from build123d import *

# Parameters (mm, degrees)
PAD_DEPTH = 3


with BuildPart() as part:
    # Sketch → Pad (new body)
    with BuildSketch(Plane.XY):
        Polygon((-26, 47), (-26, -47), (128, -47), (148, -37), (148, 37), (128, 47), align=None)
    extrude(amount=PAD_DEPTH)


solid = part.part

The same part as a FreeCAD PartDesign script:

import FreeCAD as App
import Part
import Sketcher


def add_polygon(sketch, points):
    """Adds a closed chain of lines whose ends are joined by coincident constraints."""
    first, n = sketch.GeometryCount, len(points)
    for a, b in zip(points, points[1:] + points[:1]):
        sketch.addGeometry(Part.LineSegment(App.Vector(*a, 0), App.Vector(*b, 0)), False)
    for i in range(n):
        sketch.addConstraint(Sketcher.Constraint("Coincident", first + i, 2, first + (i + 1) % n, 1))

doc = App.newDocument("Part")
params = doc.addObject("Spreadsheet::Sheet", "Params")
for row, (alias, value) in enumerate([
    ("sketch1_width", "154 mm"),
    ("sketch1_height", "94 mm"),
    ("sketch1_height2", "74 mm"),
    ("pad1_length", "3 mm"),
], start=1):
    params.set(f"A{row}", alias)
    params.set(f"B{row}", "=" + value)
    params.setAlias(f"B{row}", alias)

body = doc.addObject("PartDesign::Body", "Body")

# Sketch on XY plane
sketch1 = body.newObject("Sketcher::SketchObject", "Sketch")
sketch1.AttachmentSupport = (doc.getObject("XY_Plane"), [""])
sketch1.MapMode = "FlatFace"
add_polygon(sketch1, [(-26, 47), (-26, -47), (128, -47), (148, -37), (148, 37), (128, 47)])  # lines 0-5
sketch1.addConstraint(Sketcher.Constraint("Vertical", 0))
sketch1.addConstraint(Sketcher.Constraint("Horizontal", 1))
sketch1.addConstraint(Sketcher.Constraint("Vertical", 3))
sketch1.addConstraint(Sketcher.Constraint("Horizontal", 5))
sketch1.addConstraint(Sketcher.Constraint("Symmetric", 1, 2, 4, 2, -1))
sketch1.addConstraint(Sketcher.Constraint("Equal", 2, 4))
sketch1.addConstraint(Sketcher.Constraint("DistanceX", 1, 1, 1, 2, 154.0))
sketch1.addConstraint(Sketcher.Constraint("DistanceY", 0, 2, 0, 1, 94.0))
sketch1.addConstraint(Sketcher.Constraint("DistanceY", 3, 1, 3, 2, 74.0))
sketch1.addConstraint(Sketcher.Constraint("DistanceX", 0, 2, -1, 1, 26.0))
sketch1.addConstraint(Sketcher.Constraint("DistanceX", -1, 1, 2, 2, 148.0))
sketch1.setExpression("Constraints[12]", "Params.sketch1_width")
sketch1.setExpression("Constraints[13]", "Params.sketch1_height")
sketch1.setExpression("Constraints[14]", "Params.sketch1_height2")
pad1 = body.newObject("PartDesign::Pad", "Pad")
pad1.Profile = sketch1
pad1.setExpression("Length", "Params.pad1_length")

doc.recompute()
